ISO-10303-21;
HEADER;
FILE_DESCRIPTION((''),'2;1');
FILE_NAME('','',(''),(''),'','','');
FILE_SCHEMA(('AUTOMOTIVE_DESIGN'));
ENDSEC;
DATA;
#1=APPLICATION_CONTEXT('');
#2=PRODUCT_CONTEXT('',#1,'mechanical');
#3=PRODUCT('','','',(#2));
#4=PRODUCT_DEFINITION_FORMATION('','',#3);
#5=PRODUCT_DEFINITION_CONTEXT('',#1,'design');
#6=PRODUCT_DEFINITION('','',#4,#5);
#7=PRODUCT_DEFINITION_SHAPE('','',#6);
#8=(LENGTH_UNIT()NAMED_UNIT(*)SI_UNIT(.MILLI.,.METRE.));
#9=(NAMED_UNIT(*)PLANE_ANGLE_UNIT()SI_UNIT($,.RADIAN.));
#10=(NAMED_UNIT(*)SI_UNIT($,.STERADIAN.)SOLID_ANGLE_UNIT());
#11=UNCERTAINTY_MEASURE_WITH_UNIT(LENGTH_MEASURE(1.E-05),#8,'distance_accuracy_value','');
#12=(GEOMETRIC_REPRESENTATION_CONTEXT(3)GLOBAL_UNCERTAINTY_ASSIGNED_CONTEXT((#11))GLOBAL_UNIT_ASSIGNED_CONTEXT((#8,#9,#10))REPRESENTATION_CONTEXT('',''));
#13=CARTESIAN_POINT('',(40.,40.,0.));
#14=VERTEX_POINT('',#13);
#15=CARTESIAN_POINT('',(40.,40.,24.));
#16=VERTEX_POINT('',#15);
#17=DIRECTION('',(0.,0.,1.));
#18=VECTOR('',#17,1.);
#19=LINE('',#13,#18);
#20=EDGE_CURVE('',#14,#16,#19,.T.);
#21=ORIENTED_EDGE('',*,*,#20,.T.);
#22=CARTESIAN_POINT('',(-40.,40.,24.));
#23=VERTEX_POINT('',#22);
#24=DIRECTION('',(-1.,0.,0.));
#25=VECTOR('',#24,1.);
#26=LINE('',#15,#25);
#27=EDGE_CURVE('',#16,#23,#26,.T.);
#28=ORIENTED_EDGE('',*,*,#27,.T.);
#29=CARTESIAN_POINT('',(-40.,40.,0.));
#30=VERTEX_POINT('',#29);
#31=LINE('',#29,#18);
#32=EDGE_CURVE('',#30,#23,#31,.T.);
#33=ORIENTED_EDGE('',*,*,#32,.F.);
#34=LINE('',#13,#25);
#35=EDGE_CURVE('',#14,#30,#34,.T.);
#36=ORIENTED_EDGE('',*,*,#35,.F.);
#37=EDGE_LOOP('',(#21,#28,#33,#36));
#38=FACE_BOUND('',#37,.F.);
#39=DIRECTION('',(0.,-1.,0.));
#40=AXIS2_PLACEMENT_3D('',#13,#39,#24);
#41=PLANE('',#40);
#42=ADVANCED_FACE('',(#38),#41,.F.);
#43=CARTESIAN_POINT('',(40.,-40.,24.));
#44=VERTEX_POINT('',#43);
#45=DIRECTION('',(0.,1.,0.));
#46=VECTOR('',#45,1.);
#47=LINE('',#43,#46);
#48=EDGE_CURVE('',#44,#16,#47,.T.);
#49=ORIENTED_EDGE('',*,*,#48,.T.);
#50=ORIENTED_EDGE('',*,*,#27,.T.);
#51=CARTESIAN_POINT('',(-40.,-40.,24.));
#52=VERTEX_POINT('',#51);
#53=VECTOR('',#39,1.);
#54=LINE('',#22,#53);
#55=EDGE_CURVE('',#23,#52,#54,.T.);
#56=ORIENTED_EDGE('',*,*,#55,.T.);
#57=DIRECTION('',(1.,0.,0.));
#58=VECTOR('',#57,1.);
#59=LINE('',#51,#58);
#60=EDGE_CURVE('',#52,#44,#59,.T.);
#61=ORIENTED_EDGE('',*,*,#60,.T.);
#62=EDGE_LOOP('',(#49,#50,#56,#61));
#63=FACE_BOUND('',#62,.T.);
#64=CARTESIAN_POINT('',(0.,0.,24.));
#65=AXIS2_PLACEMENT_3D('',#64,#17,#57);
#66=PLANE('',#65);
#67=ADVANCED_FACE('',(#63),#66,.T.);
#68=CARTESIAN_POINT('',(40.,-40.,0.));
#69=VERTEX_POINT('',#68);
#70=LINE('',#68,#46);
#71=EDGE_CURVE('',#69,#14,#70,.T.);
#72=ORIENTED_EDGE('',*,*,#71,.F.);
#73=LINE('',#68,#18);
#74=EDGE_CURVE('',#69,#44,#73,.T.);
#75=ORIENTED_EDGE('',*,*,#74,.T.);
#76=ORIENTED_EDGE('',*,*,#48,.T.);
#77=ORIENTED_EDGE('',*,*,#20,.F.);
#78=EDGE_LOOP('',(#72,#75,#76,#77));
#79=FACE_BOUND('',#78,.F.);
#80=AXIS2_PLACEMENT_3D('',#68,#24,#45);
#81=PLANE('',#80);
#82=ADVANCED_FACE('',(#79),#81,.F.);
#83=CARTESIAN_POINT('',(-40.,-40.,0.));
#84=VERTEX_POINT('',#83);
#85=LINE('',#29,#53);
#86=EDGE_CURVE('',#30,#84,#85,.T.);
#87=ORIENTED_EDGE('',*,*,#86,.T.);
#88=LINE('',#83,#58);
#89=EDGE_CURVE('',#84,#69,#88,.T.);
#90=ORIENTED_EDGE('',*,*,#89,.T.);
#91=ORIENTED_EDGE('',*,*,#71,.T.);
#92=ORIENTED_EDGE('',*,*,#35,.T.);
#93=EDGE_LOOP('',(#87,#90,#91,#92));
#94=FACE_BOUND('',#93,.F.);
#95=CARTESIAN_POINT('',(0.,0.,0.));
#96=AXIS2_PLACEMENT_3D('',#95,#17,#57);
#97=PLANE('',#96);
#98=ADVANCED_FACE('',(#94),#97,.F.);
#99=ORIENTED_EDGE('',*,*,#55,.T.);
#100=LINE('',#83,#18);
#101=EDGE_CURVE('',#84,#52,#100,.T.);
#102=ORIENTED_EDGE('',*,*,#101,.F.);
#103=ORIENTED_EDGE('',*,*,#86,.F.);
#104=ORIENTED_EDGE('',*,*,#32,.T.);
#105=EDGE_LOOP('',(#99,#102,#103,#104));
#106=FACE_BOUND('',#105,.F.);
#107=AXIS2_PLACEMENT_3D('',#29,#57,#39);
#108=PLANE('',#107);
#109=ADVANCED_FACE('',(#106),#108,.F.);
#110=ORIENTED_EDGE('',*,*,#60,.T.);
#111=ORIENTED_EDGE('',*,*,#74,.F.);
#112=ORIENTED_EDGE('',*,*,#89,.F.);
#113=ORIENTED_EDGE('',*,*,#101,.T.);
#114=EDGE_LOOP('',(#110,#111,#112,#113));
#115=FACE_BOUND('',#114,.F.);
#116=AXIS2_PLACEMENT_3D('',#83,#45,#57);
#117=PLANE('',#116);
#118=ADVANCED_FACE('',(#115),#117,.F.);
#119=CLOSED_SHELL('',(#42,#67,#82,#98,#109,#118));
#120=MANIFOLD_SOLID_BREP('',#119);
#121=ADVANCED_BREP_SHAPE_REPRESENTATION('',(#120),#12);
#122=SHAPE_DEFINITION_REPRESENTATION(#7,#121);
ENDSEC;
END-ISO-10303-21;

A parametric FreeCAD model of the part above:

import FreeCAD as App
import Part
import Sketcher


def add_polygon(sketch, points):
    """Adds a closed chain of lines whose ends are joined by coincident constraints."""
    first, n = sketch.GeometryCount, len(points)
    for a, b in zip(points, points[1:] + points[:1]):
        sketch.addGeometry(Part.LineSegment(App.Vector(*a, 0), App.Vector(*b, 0)), False)
    for i in range(n):
        sketch.addConstraint(Sketcher.Constraint("Coincident", first + i, 2, first + (i + 1) % n, 1))

doc = App.newDocument("Part")
params = doc.addObject("Spreadsheet::Sheet", "Params")
for row, (alias, value) in enumerate([
    ("sketch1_width", "80 mm"),
    ("pad1_length", "24 mm"),
], start=1):
    params.set(f"A{row}", alias)
    params.set(f"B{row}", "=" + value)
    params.setAlias(f"B{row}", alias)

body = doc.addObject("PartDesign::Body", "Body")

# Sketch on XY plane
sketch1 = body.newObject("Sketcher::SketchObject", "Sketch")
sketch1.AttachmentSupport = (doc.getObject("XY_Plane"), [""])
sketch1.MapMode = "FlatFace"
add_polygon(sketch1, [(-40, 40), (-40, -40), (40, -40), (40, 40)])  # lines 0-3
sketch1.addConstraint([
    Sketcher.Constraint("Vertical", 0),
    Sketcher.Constraint("Horizontal", 1),
    Sketcher.Constraint("Vertical", 2),
    Sketcher.Constraint("Horizontal", 3),
    Sketcher.Constraint("Symmetric", 0, 2, 2, 2, -1, 1),
    Sketcher.Constraint("Equal", 3, 0),
    Sketcher.Constraint("DistanceX", 1, 1, 1, 2, 80.0),
])
sketch1.setExpression("Constraints[10]", "Params.sketch1_width")
pad1 = body.newObject("PartDesign::Pad", "Pad")
pad1.Profile = sketch1
pad1.setExpression("Length", "Params.pad1_length")

doc.recompute()
